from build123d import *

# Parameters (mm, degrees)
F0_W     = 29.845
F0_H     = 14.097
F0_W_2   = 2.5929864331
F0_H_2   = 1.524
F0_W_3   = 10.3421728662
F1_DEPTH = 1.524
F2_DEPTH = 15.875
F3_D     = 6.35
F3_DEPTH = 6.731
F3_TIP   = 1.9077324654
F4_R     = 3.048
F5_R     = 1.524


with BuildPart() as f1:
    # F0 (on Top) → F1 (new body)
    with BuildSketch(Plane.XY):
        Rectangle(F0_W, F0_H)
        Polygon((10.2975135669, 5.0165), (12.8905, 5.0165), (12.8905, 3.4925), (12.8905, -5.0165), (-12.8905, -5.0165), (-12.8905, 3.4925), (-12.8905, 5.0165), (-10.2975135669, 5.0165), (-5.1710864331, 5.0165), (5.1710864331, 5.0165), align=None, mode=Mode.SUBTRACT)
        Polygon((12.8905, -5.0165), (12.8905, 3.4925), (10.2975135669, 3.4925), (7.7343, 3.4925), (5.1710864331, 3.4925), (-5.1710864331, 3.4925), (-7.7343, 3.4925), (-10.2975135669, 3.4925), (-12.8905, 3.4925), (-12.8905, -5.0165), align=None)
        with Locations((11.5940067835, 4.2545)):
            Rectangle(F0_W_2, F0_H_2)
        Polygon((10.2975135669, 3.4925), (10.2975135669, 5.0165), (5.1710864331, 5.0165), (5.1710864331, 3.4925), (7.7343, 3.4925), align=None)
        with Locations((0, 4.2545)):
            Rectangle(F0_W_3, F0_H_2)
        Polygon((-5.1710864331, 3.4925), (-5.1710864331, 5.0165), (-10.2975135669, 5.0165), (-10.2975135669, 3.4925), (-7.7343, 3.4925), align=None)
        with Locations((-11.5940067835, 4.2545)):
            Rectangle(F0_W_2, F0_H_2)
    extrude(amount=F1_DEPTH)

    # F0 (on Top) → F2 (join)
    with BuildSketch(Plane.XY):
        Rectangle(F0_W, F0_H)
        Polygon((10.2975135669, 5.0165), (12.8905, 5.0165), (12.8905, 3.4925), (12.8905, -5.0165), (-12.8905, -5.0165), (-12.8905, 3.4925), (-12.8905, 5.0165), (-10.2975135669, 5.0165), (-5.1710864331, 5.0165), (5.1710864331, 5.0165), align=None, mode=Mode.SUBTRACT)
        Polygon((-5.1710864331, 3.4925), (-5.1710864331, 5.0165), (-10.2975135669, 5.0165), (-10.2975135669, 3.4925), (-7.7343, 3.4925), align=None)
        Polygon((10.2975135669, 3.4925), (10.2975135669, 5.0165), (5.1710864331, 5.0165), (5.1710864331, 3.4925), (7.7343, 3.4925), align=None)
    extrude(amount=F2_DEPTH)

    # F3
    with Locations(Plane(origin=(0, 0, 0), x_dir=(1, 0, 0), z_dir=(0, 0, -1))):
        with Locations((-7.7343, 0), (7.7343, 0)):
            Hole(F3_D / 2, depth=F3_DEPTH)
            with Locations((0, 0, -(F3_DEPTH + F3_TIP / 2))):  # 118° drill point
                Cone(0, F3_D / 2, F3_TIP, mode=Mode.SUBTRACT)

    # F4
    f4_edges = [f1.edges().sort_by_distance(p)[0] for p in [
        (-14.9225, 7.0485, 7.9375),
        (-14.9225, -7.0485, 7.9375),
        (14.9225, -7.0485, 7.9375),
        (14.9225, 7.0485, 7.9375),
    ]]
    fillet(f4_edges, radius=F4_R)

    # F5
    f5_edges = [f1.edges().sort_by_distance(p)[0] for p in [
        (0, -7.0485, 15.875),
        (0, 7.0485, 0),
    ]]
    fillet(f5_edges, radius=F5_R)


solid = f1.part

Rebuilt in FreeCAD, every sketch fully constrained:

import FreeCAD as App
import Part
import Sketcher

V = App.Vector
Q = App.Units.Quantity


def edges_at(feature, points):
    """Names of the edges that pass closest to the given points."""
    edges = feature.Shape.Edges
    near = lambda p: min(range(len(edges)), key=lambda i: edges[i].distToShape(Part.Vertex(*p))[0])
    return sorted({f"Edge{near(p) + 1}" for p in points})


def add_polygon(sketch, points):
    """Adds a closed chain of lines whose ends are joined by coincident constraints."""
    first, n = sketch.GeometryCount, len(points)
    for a, b in zip(points, points[1:] + points[:1]):
        sketch.addGeometry(Part.LineSegment(App.Vector(*a, 0), App.Vector(*b, 0)), False)
    for i in range(n):
        sketch.addConstraint(Sketcher.Constraint("Coincident", first + i, 2, first + (i + 1) % n, 1))

doc = App.newDocument("Part")
body = doc.addObject("PartDesign::Body", "Body")

# Sketch on XY plane
sketch1 = body.newObject("Sketcher::SketchObject", "Sketch")
sketch1.AttachmentSupport = (doc.getObject("XY_Plane"), [""])
sketch1.MapMode = "FlatFace"
add_polygon(sketch1, [(-14.9225, 7.0485), (-14.9225, -7.0485), (14.9225, -7.0485), (14.9225, 7.0485)])  # lines 0-3
sketch1.addConstraint([
    Sketcher.Constraint("Vertical", 0),
    Sketcher.Constraint("Horizontal", 1),
    Sketcher.Constraint("Vertical", 2),
    Sketcher.Constraint("Horizontal", 3),
    Sketcher.Constraint("Symmetric", 0, 2, 2, 2, -1, 1),
    Sketcher.Constraint("DistanceX", 1, 1, 1, 2, Q("1.175 in")),
    Sketcher.Constraint("DistanceY", 0, 2, 0, 1, Q("0.555 in")),
])
pad1 = body.newObject("PartDesign::Pad", "Pad")
pad1.Profile = sketch1
pad1.Length = Q("0.06 in")

# Sketch on XY plane
sketch2 = body.newObject("Sketcher::SketchObject", "Sketch001")
sketch2.AttachmentSupport = (doc.getObject("XY_Plane"), [""])
sketch2.MapMode = "FlatFace"
add_polygon(sketch2, [(-14.9225, 7.0485), (-14.9225, -7.0485), (14.9225, -7.0485), (14.9225, 7.0485)])  # lines 0-3
add_polygon(sketch2, [(-12.8905, 5.0165), (-10.297514, 5.0165), (-10.297514, 3.4925), (-5.171086, 3.4925), (-5.171086, 5.0165), (5.171086, 5.0165), (5.171086, 3.4925), (10.297514, 3.4925), (10.297514, 5.0165), (12.8905, 5.0165), (12.8905, -5.0165), (-12.8905, -5.0165)])  # lines 4-15
sketch2.addConstraint([
    Sketcher.Constraint("Vertical", 0),
    Sketcher.Constraint("Horizontal", 1),
    Sketcher.Constraint("Vertical", 2),
    Sketcher.Constraint("Horizontal", 3),
    Sketcher.Constraint("Horizontal", 4),
    Sketcher.Constraint("Vertical", 5),
    Sketcher.Constraint("Horizontal", 6),
    Sketcher.Constraint("Vertical", 7),
    Sketcher.Constraint("Horizontal", 8),
    Sketcher.Constraint("Vertical", 9),
    Sketcher.Constraint("Horizontal", 10),
    Sketcher.Constraint("Vertical", 11),
    Sketcher.Constraint("Horizontal", 12),
    Sketcher.Constraint("Vertical", 13),
    Sketcher.Constraint("Horizontal", 14),
    Sketcher.Constraint("Vertical", 15),
    Sketcher.Constraint("Symmetric", 0, 2, 2, 2, -1, 1),
    Sketcher.Constraint("Symmetric", 12, 2, 14, 2, -1, 1),
    Sketcher.Constraint("Symmetric", 6, 2, 9, 2, -2),
    Sketcher.Constraint("Symmetric", 4, 2, 11, 2, -2),
    Sketcher.Constraint("Horizontal", 4, 2, 7, 2),
    Sketcher.Constraint("DistanceY", 5, 2, 5, 1, Q("0.06 in")),
    Sketcher.Constraint("DistanceX", 1, 1, 1, 2, Q("1.175 in")),
    Sketcher.Constraint("DistanceX", 14, 2, 14, 1, Q("1.015 in")),
    Sketcher.Constraint("DistanceY", 0, 2, 0, 1, Q("0.555 in")),
    Sketcher.Constraint("DistanceY", 13, 2, 13, 1, Q("0.395 in")),
    Sketcher.Constraint("DistanceX", 4, 2, 8, 2, Q("0.609 in")),
    Sketcher.Constraint("DistanceX", 4, 1, 4, 2, Q("2.592986 mm")),
])
pad2 = body.newObject("PartDesign::Pad", "Pad001")
pad2.Profile = sketch2
pad2.Length = Q("0.625 in")

# Sketch on XY plane
sketch3 = body.newObject("Sketcher::SketchObject", "Sketch002")
sketch3.AttachmentSupport = (doc.getObject("XY_Plane"), [""])
sketch3.MapMode = "FlatFace"
sketch3.addGeometry([
    Part.Circle(V(-7.7343, 0, 0), V(0, 0, 1), 3.175),
    Part.Circle(V(7.7343, 0, 0), V(0, 0, 1), 3.175),
], False)
sketch3.addConstraint([
    Sketcher.Constraint("Equal", 0, 1),
    Sketcher.Constraint("Symmetric", 0, 3, 1, 3, -1, 1),
    Sketcher.Constraint("PointOnObject", 0, 3, -1),
    Sketcher.Constraint("Diameter", 0, Q("0.25 in")),
    Sketcher.Constraint("DistanceX", 0, 3, 1, 3, Q("0.609 in")),
])
doc.recompute()
hole = body.newObject("PartDesign::Hole", "Hole")
hole.Profile = sketch3
hole.ThreadType = "None"
hole.Diameter = Q("0.25 in")
hole.DepthType = "Dimension"
hole.Depth = Q("0.265 in")
hole.DrillPoint = "Angled"
hole.DrillPointAngle = 118
hole.Reversed = True
doc.recompute()

fillet = body.newObject("PartDesign::Fillet", "Fillet")
fillet.Base = (hole, edges_at(hole, [
    (-14.922, 7.048, 7.938),
    (-14.922, -7.048, 7.938),
    (14.922, -7.048, 7.938),
    (14.922, 7.048, 7.938),
]))
fillet.Radius = Q("0.12 in")
doc.recompute()

fillet2 = body.newObject("PartDesign::Fillet", "Fillet001")
fillet2.Base = (fillet, edges_at(fillet, [(0, -7.048, 15.875), (0, 7.048, 0)]))
fillet2.Radius = Q("0.06 in")

doc.recompute()
